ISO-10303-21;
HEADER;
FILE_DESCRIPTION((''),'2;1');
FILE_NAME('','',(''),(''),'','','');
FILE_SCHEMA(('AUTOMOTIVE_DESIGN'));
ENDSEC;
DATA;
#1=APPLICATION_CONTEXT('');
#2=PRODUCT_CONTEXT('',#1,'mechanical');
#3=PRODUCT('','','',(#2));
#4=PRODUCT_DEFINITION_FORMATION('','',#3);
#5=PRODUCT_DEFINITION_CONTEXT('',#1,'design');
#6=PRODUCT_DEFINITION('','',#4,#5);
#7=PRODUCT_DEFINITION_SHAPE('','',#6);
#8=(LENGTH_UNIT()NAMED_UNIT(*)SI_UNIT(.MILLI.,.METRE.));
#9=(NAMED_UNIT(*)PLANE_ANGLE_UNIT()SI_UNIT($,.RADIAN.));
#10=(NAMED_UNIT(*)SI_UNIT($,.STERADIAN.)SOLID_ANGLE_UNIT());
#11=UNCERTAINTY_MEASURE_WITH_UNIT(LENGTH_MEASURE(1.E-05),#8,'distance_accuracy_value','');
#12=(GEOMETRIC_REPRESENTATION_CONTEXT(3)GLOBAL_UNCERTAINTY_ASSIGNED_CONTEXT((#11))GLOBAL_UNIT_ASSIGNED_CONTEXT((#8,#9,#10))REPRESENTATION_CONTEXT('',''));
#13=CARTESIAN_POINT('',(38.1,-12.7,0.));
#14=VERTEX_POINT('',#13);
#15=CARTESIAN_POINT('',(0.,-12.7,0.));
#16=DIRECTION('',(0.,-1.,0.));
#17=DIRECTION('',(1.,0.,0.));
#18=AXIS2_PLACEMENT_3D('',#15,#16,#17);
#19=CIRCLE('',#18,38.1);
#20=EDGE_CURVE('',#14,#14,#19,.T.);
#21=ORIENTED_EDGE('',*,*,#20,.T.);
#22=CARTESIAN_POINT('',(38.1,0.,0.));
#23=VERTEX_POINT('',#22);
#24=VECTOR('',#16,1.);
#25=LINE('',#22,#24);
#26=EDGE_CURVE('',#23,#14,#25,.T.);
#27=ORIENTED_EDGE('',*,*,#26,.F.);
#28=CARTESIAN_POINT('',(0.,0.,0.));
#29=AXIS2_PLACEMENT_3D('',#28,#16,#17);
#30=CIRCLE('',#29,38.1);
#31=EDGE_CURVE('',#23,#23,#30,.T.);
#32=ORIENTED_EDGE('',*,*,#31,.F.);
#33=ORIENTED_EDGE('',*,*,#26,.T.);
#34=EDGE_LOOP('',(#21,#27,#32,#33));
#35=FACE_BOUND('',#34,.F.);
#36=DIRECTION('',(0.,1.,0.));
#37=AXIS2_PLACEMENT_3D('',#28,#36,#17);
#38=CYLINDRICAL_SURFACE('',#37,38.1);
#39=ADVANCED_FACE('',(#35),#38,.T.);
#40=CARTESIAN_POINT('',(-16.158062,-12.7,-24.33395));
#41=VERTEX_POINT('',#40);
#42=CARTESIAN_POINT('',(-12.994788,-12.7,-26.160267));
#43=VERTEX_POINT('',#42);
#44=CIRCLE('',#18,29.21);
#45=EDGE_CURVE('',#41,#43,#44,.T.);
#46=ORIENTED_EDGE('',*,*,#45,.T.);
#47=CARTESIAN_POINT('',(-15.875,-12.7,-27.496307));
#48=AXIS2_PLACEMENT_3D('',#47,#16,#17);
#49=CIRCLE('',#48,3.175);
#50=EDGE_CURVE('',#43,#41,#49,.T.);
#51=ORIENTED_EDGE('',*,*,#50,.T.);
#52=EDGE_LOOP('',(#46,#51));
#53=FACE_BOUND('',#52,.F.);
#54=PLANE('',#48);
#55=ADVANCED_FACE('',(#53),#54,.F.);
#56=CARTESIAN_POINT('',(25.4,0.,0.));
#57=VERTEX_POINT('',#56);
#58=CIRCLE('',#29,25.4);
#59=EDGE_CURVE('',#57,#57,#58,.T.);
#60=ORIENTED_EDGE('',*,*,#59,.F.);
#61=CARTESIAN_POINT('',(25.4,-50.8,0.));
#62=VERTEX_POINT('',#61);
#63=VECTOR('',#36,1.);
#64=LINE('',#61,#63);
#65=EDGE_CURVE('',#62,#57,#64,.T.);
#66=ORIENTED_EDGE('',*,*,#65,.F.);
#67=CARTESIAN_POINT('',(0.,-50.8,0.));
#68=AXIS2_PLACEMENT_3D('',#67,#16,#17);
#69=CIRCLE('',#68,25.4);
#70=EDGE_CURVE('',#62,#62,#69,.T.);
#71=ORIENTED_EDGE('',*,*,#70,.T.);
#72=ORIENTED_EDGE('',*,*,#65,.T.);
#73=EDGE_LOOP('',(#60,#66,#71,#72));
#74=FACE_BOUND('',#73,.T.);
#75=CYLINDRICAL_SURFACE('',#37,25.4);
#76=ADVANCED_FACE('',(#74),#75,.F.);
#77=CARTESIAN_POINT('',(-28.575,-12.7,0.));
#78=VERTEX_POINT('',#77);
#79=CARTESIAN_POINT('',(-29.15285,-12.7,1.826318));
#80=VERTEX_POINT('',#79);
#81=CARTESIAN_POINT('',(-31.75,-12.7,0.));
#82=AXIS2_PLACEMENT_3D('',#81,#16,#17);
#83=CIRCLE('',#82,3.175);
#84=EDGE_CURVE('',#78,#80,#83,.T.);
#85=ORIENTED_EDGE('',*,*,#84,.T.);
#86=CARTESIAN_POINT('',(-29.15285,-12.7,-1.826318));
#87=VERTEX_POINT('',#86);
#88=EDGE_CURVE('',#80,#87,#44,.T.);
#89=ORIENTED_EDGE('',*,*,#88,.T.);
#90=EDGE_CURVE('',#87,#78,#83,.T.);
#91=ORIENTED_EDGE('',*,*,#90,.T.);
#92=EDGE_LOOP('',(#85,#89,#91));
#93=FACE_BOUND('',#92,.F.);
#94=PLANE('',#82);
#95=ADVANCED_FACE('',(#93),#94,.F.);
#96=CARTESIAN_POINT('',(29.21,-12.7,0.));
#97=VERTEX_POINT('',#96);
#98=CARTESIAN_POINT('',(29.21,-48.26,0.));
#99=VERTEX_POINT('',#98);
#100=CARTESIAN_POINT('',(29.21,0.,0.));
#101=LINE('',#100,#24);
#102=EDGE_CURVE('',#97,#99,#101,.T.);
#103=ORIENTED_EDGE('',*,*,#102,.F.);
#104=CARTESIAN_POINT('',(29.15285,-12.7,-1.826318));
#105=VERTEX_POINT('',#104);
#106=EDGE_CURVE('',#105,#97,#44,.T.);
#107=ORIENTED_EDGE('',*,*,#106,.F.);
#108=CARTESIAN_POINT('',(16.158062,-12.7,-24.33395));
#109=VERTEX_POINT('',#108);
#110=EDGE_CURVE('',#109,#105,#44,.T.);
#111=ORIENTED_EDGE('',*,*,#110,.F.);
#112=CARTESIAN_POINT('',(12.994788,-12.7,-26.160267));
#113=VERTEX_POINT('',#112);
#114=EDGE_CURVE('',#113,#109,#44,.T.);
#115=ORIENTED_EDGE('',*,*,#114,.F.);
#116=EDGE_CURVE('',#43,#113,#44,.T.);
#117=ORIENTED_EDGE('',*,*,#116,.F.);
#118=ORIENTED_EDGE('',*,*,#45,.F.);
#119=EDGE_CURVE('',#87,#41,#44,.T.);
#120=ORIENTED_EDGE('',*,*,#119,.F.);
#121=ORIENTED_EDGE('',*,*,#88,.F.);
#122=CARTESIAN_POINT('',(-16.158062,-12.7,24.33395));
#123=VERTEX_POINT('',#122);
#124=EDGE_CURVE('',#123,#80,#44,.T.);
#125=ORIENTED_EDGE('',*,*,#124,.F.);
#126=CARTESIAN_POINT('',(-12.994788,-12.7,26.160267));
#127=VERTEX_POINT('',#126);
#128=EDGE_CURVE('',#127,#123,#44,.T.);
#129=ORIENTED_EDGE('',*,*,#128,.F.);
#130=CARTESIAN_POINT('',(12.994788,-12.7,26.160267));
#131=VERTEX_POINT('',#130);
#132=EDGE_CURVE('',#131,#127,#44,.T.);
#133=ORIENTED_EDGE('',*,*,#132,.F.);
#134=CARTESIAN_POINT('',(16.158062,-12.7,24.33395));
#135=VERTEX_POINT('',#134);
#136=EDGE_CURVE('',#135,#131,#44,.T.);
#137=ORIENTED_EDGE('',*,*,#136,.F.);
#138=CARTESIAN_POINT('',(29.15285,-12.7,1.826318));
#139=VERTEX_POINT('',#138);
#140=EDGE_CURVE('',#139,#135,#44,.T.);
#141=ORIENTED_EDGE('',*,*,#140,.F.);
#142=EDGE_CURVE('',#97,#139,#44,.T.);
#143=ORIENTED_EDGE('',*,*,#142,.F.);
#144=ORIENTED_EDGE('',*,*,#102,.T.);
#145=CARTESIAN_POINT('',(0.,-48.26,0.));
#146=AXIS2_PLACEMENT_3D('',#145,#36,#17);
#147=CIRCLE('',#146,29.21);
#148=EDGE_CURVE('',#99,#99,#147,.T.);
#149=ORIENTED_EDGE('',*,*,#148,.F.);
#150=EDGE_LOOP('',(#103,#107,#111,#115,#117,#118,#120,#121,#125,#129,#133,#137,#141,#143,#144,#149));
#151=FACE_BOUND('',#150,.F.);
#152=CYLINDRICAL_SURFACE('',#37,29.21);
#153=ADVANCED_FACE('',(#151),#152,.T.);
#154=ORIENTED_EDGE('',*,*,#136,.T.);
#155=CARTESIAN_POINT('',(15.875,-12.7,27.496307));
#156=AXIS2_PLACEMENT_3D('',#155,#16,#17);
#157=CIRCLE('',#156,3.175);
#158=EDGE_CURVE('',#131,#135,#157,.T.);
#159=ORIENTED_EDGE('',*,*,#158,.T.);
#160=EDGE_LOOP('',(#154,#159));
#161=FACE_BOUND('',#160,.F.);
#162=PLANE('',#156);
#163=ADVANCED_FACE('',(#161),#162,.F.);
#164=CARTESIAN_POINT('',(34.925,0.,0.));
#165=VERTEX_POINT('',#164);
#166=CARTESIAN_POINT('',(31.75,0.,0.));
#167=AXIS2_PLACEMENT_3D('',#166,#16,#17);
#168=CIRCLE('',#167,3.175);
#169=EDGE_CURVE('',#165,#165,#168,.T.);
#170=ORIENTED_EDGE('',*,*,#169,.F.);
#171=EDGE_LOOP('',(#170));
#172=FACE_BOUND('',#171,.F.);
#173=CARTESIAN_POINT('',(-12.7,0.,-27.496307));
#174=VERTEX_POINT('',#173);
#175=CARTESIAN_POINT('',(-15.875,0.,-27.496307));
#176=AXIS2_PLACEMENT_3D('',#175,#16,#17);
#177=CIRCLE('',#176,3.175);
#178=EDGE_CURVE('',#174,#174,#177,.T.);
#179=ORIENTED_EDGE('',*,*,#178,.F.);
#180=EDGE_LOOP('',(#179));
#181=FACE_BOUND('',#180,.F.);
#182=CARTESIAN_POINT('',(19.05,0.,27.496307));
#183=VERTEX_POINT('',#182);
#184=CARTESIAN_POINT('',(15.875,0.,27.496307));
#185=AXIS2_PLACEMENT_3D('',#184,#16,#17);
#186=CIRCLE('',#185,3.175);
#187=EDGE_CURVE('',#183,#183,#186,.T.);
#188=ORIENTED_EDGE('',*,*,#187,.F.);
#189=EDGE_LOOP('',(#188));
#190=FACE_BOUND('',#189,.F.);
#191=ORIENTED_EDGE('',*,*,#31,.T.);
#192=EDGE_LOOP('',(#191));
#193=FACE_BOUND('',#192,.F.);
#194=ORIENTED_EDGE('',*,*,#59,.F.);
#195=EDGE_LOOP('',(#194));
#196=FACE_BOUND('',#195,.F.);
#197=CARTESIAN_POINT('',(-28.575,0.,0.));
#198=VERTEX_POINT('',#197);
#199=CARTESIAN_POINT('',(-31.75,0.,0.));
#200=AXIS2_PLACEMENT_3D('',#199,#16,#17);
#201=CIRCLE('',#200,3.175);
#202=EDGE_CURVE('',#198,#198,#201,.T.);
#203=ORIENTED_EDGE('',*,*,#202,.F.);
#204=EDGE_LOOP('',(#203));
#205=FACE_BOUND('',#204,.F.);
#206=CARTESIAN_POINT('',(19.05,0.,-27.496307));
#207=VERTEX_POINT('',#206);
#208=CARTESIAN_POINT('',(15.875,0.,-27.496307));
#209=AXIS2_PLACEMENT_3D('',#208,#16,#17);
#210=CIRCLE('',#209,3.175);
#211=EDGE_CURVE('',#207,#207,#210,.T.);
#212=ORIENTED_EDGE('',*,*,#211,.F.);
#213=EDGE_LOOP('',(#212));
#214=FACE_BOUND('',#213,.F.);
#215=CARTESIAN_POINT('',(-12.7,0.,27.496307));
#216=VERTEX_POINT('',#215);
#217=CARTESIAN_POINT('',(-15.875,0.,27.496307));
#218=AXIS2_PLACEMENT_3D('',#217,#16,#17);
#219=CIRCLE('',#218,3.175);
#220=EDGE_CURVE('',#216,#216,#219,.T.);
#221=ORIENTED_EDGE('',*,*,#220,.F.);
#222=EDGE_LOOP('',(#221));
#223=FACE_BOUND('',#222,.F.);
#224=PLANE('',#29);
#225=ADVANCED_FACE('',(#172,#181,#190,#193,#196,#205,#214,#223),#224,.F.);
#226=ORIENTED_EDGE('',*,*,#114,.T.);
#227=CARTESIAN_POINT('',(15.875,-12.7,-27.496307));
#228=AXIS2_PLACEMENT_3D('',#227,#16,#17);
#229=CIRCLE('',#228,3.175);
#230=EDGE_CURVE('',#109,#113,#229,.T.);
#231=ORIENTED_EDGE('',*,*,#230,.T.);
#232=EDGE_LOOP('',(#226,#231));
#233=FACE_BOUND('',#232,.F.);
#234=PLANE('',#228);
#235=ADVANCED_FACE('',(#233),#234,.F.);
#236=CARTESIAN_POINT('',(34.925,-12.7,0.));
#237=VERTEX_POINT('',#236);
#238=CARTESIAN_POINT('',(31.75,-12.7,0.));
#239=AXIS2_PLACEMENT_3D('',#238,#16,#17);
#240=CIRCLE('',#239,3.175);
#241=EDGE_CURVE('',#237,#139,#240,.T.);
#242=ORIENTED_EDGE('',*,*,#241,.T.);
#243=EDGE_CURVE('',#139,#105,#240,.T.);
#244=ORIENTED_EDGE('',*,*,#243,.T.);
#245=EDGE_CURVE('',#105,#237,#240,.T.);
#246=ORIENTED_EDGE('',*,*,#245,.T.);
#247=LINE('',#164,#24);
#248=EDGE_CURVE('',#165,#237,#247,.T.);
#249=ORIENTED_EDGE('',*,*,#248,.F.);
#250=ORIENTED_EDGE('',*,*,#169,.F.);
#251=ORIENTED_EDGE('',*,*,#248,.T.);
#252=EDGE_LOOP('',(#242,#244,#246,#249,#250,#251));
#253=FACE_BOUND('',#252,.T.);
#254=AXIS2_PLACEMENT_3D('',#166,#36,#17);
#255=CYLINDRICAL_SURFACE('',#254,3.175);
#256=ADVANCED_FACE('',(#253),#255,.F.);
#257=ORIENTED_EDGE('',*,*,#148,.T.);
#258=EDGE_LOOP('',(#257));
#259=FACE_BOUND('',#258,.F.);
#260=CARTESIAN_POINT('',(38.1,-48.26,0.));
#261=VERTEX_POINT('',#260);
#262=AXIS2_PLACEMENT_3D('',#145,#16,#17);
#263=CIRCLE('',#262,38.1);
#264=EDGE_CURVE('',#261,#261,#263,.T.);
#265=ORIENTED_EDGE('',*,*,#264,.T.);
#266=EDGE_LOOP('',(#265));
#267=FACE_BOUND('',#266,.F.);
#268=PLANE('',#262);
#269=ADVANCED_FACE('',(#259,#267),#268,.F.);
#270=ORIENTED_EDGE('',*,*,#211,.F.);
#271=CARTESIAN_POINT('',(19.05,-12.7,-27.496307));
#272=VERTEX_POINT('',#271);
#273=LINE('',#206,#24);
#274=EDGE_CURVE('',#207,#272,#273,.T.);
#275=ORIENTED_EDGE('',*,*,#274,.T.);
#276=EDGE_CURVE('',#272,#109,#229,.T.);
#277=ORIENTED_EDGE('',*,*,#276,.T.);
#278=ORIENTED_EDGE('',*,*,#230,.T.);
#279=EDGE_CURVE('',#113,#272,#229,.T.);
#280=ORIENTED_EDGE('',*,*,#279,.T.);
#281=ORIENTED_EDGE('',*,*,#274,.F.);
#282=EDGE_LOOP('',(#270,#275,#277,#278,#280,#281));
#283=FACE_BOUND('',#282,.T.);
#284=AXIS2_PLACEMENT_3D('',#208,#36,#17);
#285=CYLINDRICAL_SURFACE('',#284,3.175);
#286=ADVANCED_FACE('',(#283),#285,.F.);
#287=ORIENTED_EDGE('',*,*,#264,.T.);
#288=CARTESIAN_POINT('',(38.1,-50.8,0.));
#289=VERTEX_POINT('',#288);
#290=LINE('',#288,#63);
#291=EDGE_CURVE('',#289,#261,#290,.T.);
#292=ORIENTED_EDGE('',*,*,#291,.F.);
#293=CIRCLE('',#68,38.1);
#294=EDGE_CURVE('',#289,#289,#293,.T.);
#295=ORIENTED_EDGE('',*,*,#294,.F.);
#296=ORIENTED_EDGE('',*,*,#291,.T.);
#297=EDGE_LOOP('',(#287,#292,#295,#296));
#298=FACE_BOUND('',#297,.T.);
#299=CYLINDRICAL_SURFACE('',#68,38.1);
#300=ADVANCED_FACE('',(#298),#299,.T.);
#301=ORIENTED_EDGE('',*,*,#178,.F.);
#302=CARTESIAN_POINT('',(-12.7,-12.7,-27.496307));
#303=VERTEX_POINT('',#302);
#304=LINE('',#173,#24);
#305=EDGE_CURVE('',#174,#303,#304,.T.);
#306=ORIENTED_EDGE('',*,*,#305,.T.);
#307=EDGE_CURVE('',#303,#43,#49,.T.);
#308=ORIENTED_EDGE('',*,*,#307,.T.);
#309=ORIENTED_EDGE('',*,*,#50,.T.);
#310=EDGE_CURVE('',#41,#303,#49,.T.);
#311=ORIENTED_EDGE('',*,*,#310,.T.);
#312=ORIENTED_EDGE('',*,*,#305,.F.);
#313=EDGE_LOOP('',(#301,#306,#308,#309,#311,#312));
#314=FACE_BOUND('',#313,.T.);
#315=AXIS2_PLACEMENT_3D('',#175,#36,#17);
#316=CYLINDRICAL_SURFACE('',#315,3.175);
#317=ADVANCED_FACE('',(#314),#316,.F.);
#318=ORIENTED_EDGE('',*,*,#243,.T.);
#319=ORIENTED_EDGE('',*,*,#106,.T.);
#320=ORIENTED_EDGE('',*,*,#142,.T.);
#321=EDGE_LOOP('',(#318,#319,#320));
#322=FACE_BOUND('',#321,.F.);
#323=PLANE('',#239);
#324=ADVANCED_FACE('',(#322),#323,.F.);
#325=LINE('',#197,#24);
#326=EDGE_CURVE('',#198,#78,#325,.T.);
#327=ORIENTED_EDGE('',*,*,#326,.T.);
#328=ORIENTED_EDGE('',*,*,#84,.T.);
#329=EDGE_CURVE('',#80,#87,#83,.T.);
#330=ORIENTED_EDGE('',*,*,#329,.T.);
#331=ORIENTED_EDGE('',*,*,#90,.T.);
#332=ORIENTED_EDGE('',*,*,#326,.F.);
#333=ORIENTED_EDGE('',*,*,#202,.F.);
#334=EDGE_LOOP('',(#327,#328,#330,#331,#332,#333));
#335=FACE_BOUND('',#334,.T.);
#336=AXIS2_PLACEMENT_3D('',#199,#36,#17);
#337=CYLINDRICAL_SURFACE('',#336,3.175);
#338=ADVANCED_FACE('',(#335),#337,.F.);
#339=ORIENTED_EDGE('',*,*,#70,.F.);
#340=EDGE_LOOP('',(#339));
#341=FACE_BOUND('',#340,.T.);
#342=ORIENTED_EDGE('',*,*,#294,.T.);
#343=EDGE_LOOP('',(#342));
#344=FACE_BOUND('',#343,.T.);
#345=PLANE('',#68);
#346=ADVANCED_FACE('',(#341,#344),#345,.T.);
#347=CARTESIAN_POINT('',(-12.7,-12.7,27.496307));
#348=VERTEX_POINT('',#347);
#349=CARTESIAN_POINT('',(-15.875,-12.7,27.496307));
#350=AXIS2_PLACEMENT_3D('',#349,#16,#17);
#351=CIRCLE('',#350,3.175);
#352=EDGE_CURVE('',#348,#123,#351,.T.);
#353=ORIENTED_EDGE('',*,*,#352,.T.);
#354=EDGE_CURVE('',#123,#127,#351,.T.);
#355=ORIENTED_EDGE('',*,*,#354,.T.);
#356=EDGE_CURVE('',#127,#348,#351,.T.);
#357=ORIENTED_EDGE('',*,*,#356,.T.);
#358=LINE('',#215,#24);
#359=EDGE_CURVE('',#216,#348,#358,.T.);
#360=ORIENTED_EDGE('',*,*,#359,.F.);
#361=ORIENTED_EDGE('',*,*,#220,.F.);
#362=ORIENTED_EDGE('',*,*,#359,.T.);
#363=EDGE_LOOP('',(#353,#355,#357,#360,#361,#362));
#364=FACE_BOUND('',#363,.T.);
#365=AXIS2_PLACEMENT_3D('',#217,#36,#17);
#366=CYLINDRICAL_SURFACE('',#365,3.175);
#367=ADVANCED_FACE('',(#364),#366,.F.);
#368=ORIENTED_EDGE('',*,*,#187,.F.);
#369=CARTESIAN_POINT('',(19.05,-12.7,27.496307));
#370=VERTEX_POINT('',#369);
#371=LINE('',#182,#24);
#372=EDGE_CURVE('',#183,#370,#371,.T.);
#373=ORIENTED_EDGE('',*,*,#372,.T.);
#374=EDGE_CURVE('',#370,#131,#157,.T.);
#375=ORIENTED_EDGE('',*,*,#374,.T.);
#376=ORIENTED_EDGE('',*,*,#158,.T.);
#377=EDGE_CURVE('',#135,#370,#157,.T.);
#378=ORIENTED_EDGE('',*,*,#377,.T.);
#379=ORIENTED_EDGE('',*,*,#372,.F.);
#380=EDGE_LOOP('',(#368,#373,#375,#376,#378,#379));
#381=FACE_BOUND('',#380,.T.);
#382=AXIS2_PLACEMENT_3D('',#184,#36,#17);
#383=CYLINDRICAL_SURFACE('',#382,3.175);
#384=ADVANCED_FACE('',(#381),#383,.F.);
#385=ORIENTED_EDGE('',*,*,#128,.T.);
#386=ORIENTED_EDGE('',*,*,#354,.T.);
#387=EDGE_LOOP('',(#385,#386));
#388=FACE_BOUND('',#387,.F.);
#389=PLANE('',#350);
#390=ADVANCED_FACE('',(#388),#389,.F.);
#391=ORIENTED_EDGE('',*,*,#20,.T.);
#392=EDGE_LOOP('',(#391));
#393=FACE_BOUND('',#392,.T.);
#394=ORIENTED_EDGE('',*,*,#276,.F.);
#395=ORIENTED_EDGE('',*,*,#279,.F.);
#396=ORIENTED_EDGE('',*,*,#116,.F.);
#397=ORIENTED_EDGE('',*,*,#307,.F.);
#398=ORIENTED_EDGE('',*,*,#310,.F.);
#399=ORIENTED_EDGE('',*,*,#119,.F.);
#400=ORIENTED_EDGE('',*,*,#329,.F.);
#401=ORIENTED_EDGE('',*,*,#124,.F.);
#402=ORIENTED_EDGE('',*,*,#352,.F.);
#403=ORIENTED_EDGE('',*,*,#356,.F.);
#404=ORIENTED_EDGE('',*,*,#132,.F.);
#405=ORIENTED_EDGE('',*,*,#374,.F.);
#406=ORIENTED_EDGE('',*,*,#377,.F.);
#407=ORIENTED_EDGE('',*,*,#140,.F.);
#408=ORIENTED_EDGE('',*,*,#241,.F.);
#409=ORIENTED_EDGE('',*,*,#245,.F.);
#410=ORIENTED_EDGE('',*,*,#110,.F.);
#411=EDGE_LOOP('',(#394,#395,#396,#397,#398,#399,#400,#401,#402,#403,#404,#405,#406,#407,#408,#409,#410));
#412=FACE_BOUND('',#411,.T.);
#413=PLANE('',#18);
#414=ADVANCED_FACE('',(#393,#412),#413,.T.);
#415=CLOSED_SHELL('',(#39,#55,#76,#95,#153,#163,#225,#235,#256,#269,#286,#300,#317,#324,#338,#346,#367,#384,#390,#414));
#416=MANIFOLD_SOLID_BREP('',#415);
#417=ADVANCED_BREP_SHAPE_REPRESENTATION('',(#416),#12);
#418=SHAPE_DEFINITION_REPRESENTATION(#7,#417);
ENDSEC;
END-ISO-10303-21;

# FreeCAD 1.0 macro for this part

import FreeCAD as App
import Part
import Sketcher
from FreeCAD import Vector
Q = App.Units.Quantity

doc = App.newDocument("Part")
body = doc.addObject("PartDesign::Body", "Body")

sketch1 = doc.addObject("Sketcher::SketchObject", "Sketch")
body.addObject(sketch1)
sketch1.AttachmentSupport = (doc.XZ_Plane, [""])
sketch1.MapMode = "FlatFace"
sketch1.addGeometry([
    Part.Circle(Vector(0, 0, 0), Vector(0, 0, 1), 29.21),
    Part.Circle(Vector(0, 0, 0), Vector(0, 0, 1), 25.4),
], False)
sketch1.addConstraint([
    Sketcher.Constraint("Coincident", 0, 3, -1, 1),
    Sketcher.Constraint("Coincident", 1, 3, -1, 1),
    Sketcher.Constraint("Diameter", 1, Q("2 in")),
    Sketcher.Constraint("Diameter", 0, Q("2.3 in")),
])
pad1 = doc.addObject("PartDesign::Pad", "Pad")
body.addObject(pad1)
pad1.Profile = sketch1
pad1.Length = Q("2 in")

sketch2 = doc.addObject("Sketcher::SketchObject", "Sketch001")
body.addObject(sketch2)
sketch2.AttachmentSupport = (doc.XZ_Plane, [""])
sketch2.MapMode = "FlatFace"
sketch2.addGeometry([
    Part.Circle(Vector(0, 0, 0), Vector(0, 0, 1), 38.1),
    Part.Circle(Vector(0, 0, 0), Vector(0, 0, 1), 29.21),
], False)
sketch2.addConstraint([
    Sketcher.Constraint("Coincident", 0, 3, -1, 1),
    Sketcher.Constraint("Coincident", 1, 3, -1, 1),
    Sketcher.Constraint("Diameter", 0, Q("3 in")),
    Sketcher.Constraint("Diameter", 1, Q("2.3 in")),
])
pad2 = doc.addObject("PartDesign::Pad", "Pad001")
body.addObject(pad2)
pad2.Profile = sketch2
pad2.Length = Q("0.5 in")

sketch3 = doc.addObject("Sketcher::SketchObject", "Sketch002")
body.addObject(sketch3)
sketch3.AttachmentSupport = (doc.XZ_Plane, [""])
sketch3.MapMode = "FlatFace"
sketch3.addGeometry([
    Part.Circle(Vector(-31.75, 0, 0), Vector(0, 0, 1), 3.175),
    Part.Circle(Vector(-15.875, -27.496307, 0), Vector(0, 0, 1), 3.175),
    Part.Circle(Vector(15.875, -27.496307, 0), Vector(0, 0, 1), 3.175),
    Part.Circle(Vector(31.75, 0, 0), Vector(0, 0, 1), 3.175),
    Part.Circle(Vector(15.875, 27.496307, 0), Vector(0, 0, 1), 3.175),
    Part.Circle(Vector(-15.875, 27.496307, 0), Vector(0, 0, 1), 3.175),
], False)
sketch3.addConstraint([
    Sketcher.Constraint("Equal", 0, 1),
    Sketcher.Constraint("Equal", 1, 2),
    Sketcher.Constraint("Equal", 2, 3),
    Sketcher.Constraint("Equal", 3, 4),
    Sketcher.Constraint("Equal", 4, 5),
    Sketcher.Constraint("Symmetric", 0, 3, 3, 3, -1, 1),
    Sketcher.Constraint("Symmetric", 1, 3, 4, 3, -1, 1),
    Sketcher.Constraint("Symmetric", 2, 3, 5, 3, -1, 1),
    Sketcher.Constraint("Symmetric", 1, 3, 2, 3, -2),
    Sketcher.Constraint("PointOnObject", 0, 3, -1),
    Sketcher.Constraint("Diameter", 0, Q("0.25 in")),
    Sketcher.Constraint("DistanceX", 0, 3, 3, 3, Q("2.5 in")),
    Sketcher.Constraint("DistanceX", 1, 3, 2, 3, Q("1.25 in")),
    Sketcher.Constraint("DistanceY", 1, 3, -1, 1, 27.496307),
])
pocket1 = doc.addObject("PartDesign::Pocket", "Pocket")
body.addObject(pocket1)
pocket1.Profile = sketch3
pocket1.Length = Q("0.5 in")
pocket1.Reversed = True

sketch4 = doc.addObject("Sketcher::SketchObject", "Sketch003")
body.addObject(sketch4)
sketch4.AttachmentSupport = (doc.XZ_Plane, [""])
sketch4.MapMode = "FlatFace"
sketch4.AttachmentOffset = App.Placement(Vector(0, 0, 2 * 25.4), App.Rotation())
sketch4.addGeometry([
    Part.Circle(Vector(0, 0, 0), Vector(0, 0, 1), 38.1),
    Part.Circle(Vector(0, 0, 0), Vector(0, 0, 1), 25.4),
], False)
sketch4.addConstraint([
    Sketcher.Constraint("Coincident", 0, 3, -1, 1),
    Sketcher.Constraint("Coincident", 1, 3, -1, 1),
    Sketcher.Constraint("Diameter", 0, Q("3 in")),
    Sketcher.Constraint("Diameter", 1, Q("2 in")),
])
pad3 = doc.addObject("PartDesign::Pad", "Pad002")
body.addObject(pad3)
pad3.Profile = sketch4
pad3.Length = Q("0.1 in")
pad3.Reversed = True

doc.recompute()
